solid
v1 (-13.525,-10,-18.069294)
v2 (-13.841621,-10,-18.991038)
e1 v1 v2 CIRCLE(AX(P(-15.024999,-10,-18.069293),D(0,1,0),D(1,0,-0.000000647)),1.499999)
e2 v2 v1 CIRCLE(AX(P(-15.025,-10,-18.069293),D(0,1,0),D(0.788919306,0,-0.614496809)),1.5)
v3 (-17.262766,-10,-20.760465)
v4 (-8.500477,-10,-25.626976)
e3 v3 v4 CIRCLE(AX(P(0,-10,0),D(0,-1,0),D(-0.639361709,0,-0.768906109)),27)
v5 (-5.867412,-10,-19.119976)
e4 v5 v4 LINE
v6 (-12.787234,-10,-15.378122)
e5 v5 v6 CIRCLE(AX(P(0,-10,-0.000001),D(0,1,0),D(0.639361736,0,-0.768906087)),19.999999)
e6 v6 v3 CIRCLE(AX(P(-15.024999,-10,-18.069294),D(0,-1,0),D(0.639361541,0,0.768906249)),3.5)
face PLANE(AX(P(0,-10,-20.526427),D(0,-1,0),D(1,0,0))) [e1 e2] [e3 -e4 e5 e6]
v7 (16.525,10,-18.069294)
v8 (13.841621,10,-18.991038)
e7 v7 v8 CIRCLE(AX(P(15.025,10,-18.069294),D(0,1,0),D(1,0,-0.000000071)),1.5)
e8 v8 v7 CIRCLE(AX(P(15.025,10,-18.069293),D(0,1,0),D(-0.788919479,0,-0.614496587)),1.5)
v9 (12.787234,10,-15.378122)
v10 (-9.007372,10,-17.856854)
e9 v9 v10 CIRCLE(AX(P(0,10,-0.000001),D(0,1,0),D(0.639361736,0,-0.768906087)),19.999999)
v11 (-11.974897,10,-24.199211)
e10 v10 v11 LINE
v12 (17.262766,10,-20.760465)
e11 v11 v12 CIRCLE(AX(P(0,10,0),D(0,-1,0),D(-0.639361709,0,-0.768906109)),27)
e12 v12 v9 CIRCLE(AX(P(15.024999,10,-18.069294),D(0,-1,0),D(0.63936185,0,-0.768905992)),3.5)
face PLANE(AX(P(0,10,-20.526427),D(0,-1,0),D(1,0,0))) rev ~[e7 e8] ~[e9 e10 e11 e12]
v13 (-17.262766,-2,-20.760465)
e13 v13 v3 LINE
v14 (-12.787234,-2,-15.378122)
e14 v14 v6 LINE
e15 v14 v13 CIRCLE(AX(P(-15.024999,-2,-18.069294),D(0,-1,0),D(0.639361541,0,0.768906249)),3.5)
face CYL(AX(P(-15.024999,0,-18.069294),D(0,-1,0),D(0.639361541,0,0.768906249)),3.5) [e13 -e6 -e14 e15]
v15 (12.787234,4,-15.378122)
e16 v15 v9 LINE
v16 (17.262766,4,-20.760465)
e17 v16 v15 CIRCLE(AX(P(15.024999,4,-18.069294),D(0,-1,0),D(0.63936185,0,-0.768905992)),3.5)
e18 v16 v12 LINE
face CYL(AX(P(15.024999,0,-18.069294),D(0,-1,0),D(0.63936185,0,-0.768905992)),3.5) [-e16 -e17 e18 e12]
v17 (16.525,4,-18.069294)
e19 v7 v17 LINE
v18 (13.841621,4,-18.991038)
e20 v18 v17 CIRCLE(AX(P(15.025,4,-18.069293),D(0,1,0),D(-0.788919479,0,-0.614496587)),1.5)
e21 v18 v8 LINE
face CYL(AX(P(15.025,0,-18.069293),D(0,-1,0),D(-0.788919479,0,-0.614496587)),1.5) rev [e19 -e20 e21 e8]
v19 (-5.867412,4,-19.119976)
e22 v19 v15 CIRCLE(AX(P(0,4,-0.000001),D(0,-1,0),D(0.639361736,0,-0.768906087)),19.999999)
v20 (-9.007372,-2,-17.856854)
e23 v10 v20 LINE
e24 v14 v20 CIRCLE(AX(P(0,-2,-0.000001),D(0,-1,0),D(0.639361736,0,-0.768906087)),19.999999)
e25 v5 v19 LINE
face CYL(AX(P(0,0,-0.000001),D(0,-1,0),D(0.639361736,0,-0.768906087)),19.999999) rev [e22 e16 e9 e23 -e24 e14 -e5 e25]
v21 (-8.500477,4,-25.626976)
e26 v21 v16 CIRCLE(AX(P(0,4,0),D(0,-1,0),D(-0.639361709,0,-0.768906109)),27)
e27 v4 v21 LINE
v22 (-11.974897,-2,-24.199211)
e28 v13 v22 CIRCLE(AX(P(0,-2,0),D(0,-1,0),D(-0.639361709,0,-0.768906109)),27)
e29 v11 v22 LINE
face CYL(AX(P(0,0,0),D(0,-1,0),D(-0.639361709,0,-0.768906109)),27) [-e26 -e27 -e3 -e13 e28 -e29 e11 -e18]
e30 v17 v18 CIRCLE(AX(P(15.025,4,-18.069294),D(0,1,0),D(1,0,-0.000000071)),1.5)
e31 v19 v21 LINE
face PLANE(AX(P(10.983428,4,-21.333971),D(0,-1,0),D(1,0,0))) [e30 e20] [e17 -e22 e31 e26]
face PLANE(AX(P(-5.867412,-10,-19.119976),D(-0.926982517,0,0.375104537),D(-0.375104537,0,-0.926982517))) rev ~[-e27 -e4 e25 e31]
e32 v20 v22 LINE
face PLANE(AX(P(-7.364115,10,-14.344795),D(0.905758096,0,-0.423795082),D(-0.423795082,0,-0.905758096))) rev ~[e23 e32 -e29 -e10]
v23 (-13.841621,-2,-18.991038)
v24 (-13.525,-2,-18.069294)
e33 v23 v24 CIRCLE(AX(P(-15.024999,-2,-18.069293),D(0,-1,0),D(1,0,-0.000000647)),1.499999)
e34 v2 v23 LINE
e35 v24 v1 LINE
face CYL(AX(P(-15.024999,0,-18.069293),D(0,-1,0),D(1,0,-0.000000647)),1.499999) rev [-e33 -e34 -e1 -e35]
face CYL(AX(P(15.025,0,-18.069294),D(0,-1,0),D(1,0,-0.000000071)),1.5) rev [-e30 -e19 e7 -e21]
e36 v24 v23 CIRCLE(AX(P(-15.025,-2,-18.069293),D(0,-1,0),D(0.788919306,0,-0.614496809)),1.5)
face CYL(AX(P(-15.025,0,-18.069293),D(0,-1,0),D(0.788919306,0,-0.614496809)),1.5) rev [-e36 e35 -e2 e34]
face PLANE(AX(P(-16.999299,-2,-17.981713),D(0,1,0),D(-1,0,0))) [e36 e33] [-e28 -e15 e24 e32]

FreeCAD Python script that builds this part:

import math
import FreeCAD as App
import Part
import Sketcher
Q = App.Units.Quantity


def add_polygon(sketch, points):
    """Adds a closed chain of lines whose ends are joined by coincident constraints."""
    first, n = sketch.GeometryCount, len(points)
    for a, b in zip(points, points[1:] + points[:1]):
        sketch.addGeometry(Part.LineSegment(App.Vector(*a, 0), App.Vector(*b, 0)), False)
    for i in range(n):
        sketch.addConstraint(Sketcher.Constraint("Coincident", first + i, 2, first + (i + 1) % n, 1))

doc = App.newDocument("Part")
body = doc.addObject("PartDesign::Body", "Body")

# Sketch on XZ plane
sketch1 = doc.addObject("Sketcher::SketchObject", "Sketch")
body.addObject(sketch1)
sketch1.AttachmentSupport = (doc.XZ_Plane, [""])
sketch1.MapMode = "FlatFace"
sketch1.addGeometry(Part.ArcOfCircle(Part.Circle(App.Vector(0, 0, 0), App.Vector(0, 0, 1), 20), math.radians(-130), math.radians(-50)), False)
sketch1.addGeometry(Part.ArcOfCircle(Part.Circle(App.Vector(-15, -18.1, 0), App.Vector(0, 0, 1), 3.5), math.radians(50), math.radians(230)), False)
sketch1.addGeometry(Part.ArcOfCircle(Part.Circle(App.Vector(0, 0, 0), App.Vector(0, 0, 1), 27), math.radians(-130), math.radians(-50)), False)
sketch1.addGeometry(Part.ArcOfCircle(Part.Circle(App.Vector(15, -18.1, 0), App.Vector(0, 0, 1), 3.5), math.radians(-50), math.radians(130)), False)
sketch1.addGeometry(Part.ArcOfCircle(Part.Circle(App.Vector(15, -18.1, 0), App.Vector(0, 0, 1), 1.5), math.radians(0), math.radians(218)), False)
sketch1.addGeometry(Part.ArcOfCircle(Part.Circle(App.Vector(15, -18.1, 0), App.Vector(0, 0, 1), 1.5), math.radians(-142), math.radians(0)), False)
sketch1.addGeometry(Part.ArcOfCircle(Part.Circle(App.Vector(-15, -18.1, 0), App.Vector(0, 0, 1), 1.5), math.radians(0), math.radians(322)), False)
sketch1.addGeometry(Part.ArcOfCircle(Part.Circle(App.Vector(-15, -18.1, 0), App.Vector(0, 0, 1), 1.5), math.radians(-38), math.radians(0)), False)
sketch1.addConstraint(Sketcher.Constraint("Tangent", 0, 1, 1, 1))
sketch1.addConstraint(Sketcher.Constraint("Tangent", 1, 2, 2, 1))
sketch1.addConstraint(Sketcher.Constraint("Tangent", 2, 2, 3, 1))
sketch1.addConstraint(Sketcher.Constraint("Tangent", 3, 2, 0, 2))
sketch1.addConstraint(Sketcher.Constraint("Tangent", 4, 1, 5, 2))
sketch1.addConstraint(Sketcher.Constraint("Coincident", 5, 1, 4, 2))
sketch1.addConstraint(Sketcher.Constraint("Tangent", 6, 1, 7, 2))
sketch1.addConstraint(Sketcher.Constraint("Coincident", 7, 1, 6, 2))
sketch1.addConstraint(Sketcher.Constraint("Coincident", 0, 3, -1, 1))
sketch1.addConstraint(Sketcher.Constraint("Coincident", 2, 3, -1, 1))
sketch1.addConstraint(Sketcher.Constraint("Coincident", 4, 3, 3, 3))
sketch1.addConstraint(Sketcher.Constraint("Coincident", 6, 3, 1, 3))
sketch1.addConstraint(Sketcher.Constraint("Equal", 5, 6))
sketch1.addConstraint(Sketcher.Constraint("Symmetric", 5, 1, 7, 1, -2))
sketch1.addConstraint(Sketcher.Constraint("Horizontal", 7, 3, 4, 1))
sketch1.addConstraint(Sketcher.Constraint("Horizontal", 4, 1, 6, 1))
sketch1.addConstraint(Sketcher.Constraint("Radius", 0, Q("19.999999 mm")))
sketch1.addConstraint(Sketcher.Constraint("Radius", 2, Q("27 mm")))
sketch1.addConstraint(Sketcher.Constraint("Radius", 4, Q("1.5 mm")))
sketch1.addConstraint(Sketcher.Constraint("DistanceX", 1, 3, 3, 3, Q("30.049999 mm")))
sketch1.addConstraint(Sketcher.Constraint("DistanceX", -1, 1, 5, 1, Q("13.841621 mm")))
pad1 = doc.addObject("PartDesign::Pad", "Pad")
body.addObject(pad1)
pad1.Profile = sketch1
pad1.Length = 20
pad1.Midplane = True

# Sketch on XZ plane
sketch2 = doc.addObject("Sketcher::SketchObject", "Sketch001")
body.addObject(sketch2)
sketch2.AttachmentSupport = (doc.XZ_Plane, [""])
sketch2.MapMode = "FlatFace"
sketch2.AttachmentOffset = App.Placement(App.Vector(0, 0, 10), App.Rotation())
add_polygon(sketch2, [(31.8, -10.1), (-3.4, -13), (-5.9, -19.1), (-8.5, -25.6), (-10.2, -29.9), (28.2, -31.5)])  # lines 0-5
sketch2.addGeometry(Part.ArcOfCircle(Part.Circle(App.Vector(15, -18.1, 0), App.Vector(0, 0, 1), 1.5), math.radians(-142), math.radians(0)), False)  # 6
sketch2.addGeometry(Part.ArcOfCircle(Part.Circle(App.Vector(15, -18.1, 0), App.Vector(0, 0, 1), 1.5), math.radians(0), math.radians(218)), False)  # 7
sketch2.addConstraint(Sketcher.Constraint("Tangent", 6, 1, 7, 2))
sketch2.addConstraint(Sketcher.Constraint("Coincident", 7, 1, 6, 2))
sketch2.addConstraint(Sketcher.Constraint("Parallel", 1, 2))
sketch2.addConstraint(Sketcher.Constraint("Parallel", 2, 3))
sketch2.addConstraint(Sketcher.Constraint("Horizontal", 6, 3, 7, 1))
sketch2.addConstraint(Sketcher.Constraint("Radius", 6, Q("1.5 mm")))
sketch2.addConstraint(Sketcher.Constraint("DistanceX", -1, 1, 6, 3, Q("15.025 mm")))
sketch2.addConstraint(Sketcher.Constraint("DistanceY", 2, 2, 1, 2, Q("6.507 mm")))
sketch2.addConstraint(Sketcher.Constraint("DistanceX", 1, 2, 0, 2, Q("2.482101 mm")))
sketch2.addConstraint(Sketcher.Constraint("Distance", 0, Q("35.269941 mm")))
sketch2.addConstraint(Sketcher.Constraint("Distance", 2, Q("7.01955 mm")))
sketch2.addConstraint(Sketcher.Constraint("Distance", 5, Q("21.70874 mm")))
sketch2.addConstraint(Sketcher.Constraint("DistanceX", 0, 2, -1, 1, Q("3.385311 mm")))
sketch2.addConstraint(Sketcher.Constraint("DistanceY", 3, 2, -1, 1, Q("29.855039 mm")))
sketch2.addConstraint(Sketcher.Constraint("DistanceY", 4, 2, -1, 1, Q("31.502709 mm")))
sketch2.addConstraint(Sketcher.Constraint("DistanceX", -1, 1, 6, 1, Q("13.841621 mm")))
sketch2.addConstraint(Sketcher.Constraint("DistanceY", 6, 1, -1, 1, Q("18.991038 mm")))
sketch2.addConstraint(Sketcher.Constraint("DistanceX", 3, 2, 2, 2, Q("1.710891 mm")))
sketch2.addConstraint(Sketcher.Constraint("DistanceY", 7, 3, 5, 2, Q("7.986281 mm")))
pocket1 = doc.addObject("PartDesign::Pocket", "Pocket")
body.addObject(pocket1)
pocket1.Profile = sketch2
pocket1.Length = 14

# Sketch on XZ plane
sketch3 = doc.addObject("Sketcher::SketchObject", "Sketch002")
body.addObject(sketch3)
sketch3.AttachmentSupport = (doc.XZ_Plane, [""])
sketch3.MapMode = "FlatFace"
sketch3.AttachmentOffset = App.Placement(App.Vector(0, 0, -10), App.Rotation())
add_polygon(sketch3, [(-7, -14), (-14, -28), (-28, -13)])  # lines 0-2
sketch3.addConstraint(Sketcher.Constraint("Angle", 1, Q("135.000004 deg")))
sketch3.addConstraint(Sketcher.Constraint("DistanceX", 1, 2, -1, 1, Q("28.157102 mm")))
sketch3.addConstraint(Sketcher.Constraint("Distance", 2, Q("20.839682 mm")))
sketch3.addConstraint(Sketcher.Constraint("DistanceY", 0, 2, -1, 1, Q("27.560162 mm")))
sketch3.addConstraint(Sketcher.Constraint("DistanceX", 1, 2, 0, 2, Q("14.60965 mm")))
sketch3.addConstraint(Sketcher.Constraint("DistanceY", 2, 2, 1, 2, Q("1.394281 mm")))
pocket2 = doc.addObject("PartDesign::Pocket", "Pocket001")
body.addObject(pocket2)
pocket2.Profile = sketch3
pocket2.Length = 12
pocket2.Reversed = True

doc.recompute()
